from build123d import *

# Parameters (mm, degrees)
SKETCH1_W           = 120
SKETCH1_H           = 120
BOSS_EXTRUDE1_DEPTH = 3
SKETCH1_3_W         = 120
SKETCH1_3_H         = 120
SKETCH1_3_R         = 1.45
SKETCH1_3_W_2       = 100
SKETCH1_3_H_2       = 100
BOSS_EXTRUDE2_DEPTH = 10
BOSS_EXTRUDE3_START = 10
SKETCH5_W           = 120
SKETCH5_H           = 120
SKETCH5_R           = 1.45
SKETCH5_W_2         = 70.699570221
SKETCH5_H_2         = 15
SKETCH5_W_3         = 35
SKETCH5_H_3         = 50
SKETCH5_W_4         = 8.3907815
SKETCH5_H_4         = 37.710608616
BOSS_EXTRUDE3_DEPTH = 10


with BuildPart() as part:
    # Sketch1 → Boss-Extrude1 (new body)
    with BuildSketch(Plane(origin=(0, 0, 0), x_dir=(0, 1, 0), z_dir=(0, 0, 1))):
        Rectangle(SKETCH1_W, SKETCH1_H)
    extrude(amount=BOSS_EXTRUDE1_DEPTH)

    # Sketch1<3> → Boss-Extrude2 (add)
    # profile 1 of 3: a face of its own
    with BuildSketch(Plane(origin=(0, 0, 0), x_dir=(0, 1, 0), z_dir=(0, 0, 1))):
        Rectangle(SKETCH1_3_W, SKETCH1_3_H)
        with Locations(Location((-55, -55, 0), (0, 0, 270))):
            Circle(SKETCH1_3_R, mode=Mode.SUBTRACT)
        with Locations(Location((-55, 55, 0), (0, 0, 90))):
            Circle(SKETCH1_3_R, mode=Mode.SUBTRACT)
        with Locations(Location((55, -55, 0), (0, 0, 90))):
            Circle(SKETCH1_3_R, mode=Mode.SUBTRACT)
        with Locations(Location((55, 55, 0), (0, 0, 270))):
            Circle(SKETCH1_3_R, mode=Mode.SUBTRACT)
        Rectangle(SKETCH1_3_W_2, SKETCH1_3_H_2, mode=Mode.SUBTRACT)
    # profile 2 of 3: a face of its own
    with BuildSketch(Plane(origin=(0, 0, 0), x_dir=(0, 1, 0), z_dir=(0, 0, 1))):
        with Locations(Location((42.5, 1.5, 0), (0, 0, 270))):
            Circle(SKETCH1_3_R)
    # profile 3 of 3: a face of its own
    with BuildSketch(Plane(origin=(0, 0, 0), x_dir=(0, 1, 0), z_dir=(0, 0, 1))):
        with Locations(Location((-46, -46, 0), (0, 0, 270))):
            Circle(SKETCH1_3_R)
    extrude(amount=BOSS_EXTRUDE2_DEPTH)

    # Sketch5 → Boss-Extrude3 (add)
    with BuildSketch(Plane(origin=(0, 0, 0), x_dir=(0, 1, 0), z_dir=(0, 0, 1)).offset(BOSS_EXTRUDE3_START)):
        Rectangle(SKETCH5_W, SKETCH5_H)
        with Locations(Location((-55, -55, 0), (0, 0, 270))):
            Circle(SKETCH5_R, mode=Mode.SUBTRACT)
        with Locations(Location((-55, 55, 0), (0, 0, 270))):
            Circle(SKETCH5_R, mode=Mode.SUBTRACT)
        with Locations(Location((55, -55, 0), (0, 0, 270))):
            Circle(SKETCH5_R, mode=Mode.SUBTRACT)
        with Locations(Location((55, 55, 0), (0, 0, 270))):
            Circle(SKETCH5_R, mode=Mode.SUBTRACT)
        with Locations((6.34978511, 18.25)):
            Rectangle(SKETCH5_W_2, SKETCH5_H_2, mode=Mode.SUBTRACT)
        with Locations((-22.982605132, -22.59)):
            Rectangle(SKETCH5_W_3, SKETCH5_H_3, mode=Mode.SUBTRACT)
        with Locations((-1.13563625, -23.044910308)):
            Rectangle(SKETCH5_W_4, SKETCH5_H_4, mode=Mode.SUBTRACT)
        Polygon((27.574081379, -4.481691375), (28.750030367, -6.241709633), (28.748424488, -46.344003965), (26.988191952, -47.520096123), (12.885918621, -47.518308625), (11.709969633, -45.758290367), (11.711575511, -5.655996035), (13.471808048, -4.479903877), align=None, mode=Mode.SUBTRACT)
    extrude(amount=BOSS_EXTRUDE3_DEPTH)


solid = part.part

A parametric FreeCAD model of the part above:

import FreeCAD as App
import Part
import Sketcher
from FreeCAD import Vector

doc = App.newDocument("Part")
body = doc.addObject("PartDesign::Body", "Body")

sketch1 = body.newObject("Sketcher::SketchObject", "Sketch")
sketch1.AttachmentSupport = (doc.getObject("XY_Plane"), [""])
sketch1.MapMode = "FlatFace"
sketch1.addGeometry([
    Part.LineSegment(Vector(-60, -60, 0), Vector(60, -60, 0)),
    Part.LineSegment(Vector(60, -60, 0), Vector(60, 60, 0)),
    Part.LineSegment(Vector(60, 60, 0), Vector(-60, 60, 0)),
    Part.LineSegment(Vector(-60, 60, 0), Vector(-60, -60, 0)),
], False)
sketch1.addConstraint([
    Sketcher.Constraint("Coincident", 0, 2, 1, 1),
    Sketcher.Constraint("Coincident", 1, 2, 2, 1),
    Sketcher.Constraint("Coincident", 2, 2, 3, 1),
    Sketcher.Constraint("Coincident", 3, 2, 0, 1),
    Sketcher.Constraint("Horizontal", 0),
    Sketcher.Constraint("Vertical", 1),
    Sketcher.Constraint("Horizontal", 2),
    Sketcher.Constraint("Vertical", 3),
    Sketcher.Constraint("Symmetric", 0, 2, 2, 2, -1, 1),
    Sketcher.Constraint("Equal", 2, 1),
    Sketcher.Constraint("DistanceX", 0, 1, 0, 2, 120.0),
])
pad1 = body.newObject("PartDesign::Pad", "Pad")
pad1.Profile = sketch1
pad1.Length = 3

sketch2 = body.newObject("Sketcher::SketchObject", "Sketch001")
sketch2.AttachmentSupport = (doc.getObject("XY_Plane"), [""])
sketch2.MapMode = "FlatFace"
sketch2.addGeometry([
    Part.LineSegment(Vector(-60, -60, 0), Vector(60, -60, 0)),
    Part.LineSegment(Vector(60, -60, 0), Vector(60, 60, 0)),
    Part.LineSegment(Vector(60, 60, 0), Vector(-60, 60, 0)),
    Part.LineSegment(Vector(-60, 60, 0), Vector(-60, -60, 0)),
    Part.Circle(Vector(55, -55, 0), Vector(0, 0, 1), 1.45),
    Part.LineSegment(Vector(50, 50, 0), Vector(50, -50, 0)),
    Part.LineSegment(Vector(50, -50, 0), Vector(-50, -50, 0)),
    Part.LineSegment(Vector(-50, -50, 0), Vector(-50, 50, 0)),
    Part.LineSegment(Vector(-50, 50, 0), Vector(50, 50, 0)),
    Part.Circle(Vector(55, 55, 0), Vector(0, 0, 1), 1.45),
    Part.Circle(Vector(-55, -55, 0), Vector(0, 0, 1), 1.45),
    Part.Circle(Vector(-55, 55, 0), Vector(0, 0, 1), 1.45),
    Part.Circle(Vector(-1.5, 42.5, 0), Vector(0, 0, 1), 1.45),
    Part.Circle(Vector(46, -46, 0), Vector(0, 0, 1), 1.45),
], False)
sketch2.addConstraint([
    Sketcher.Constraint("Coincident", 0, 2, 1, 1),
    Sketcher.Constraint("Coincident", 1, 2, 2, 1),
    Sketcher.Constraint("Coincident", 2, 2, 3, 1),
    Sketcher.Constraint("Coincident", 3, 2, 0, 1),
    Sketcher.Constraint("Coincident", 5, 2, 6, 1),
    Sketcher.Constraint("Coincident", 6, 2, 7, 1),
    Sketcher.Constraint("Coincident", 7, 2, 8, 1),
    Sketcher.Constraint("Coincident", 8, 2, 5, 1),
    Sketcher.Constraint("Horizontal", 0),
    Sketcher.Constraint("Vertical", 1),
    Sketcher.Constraint("Horizontal", 2),
    Sketcher.Constraint("Vertical", 3),
    Sketcher.Constraint("Vertical", 5),
    Sketcher.Constraint("Horizontal", 6),
    Sketcher.Constraint("Vertical", 7),
    Sketcher.Constraint("Horizontal", 8),
    Sketcher.Constraint("Equal", 4, 9),
    Sketcher.Constraint("Equal", 9, 10),
    Sketcher.Constraint("Equal", 10, 11),
    Sketcher.Constraint("Equal", 11, 12),
    Sketcher.Constraint("Equal", 12, 13),
    Sketcher.Constraint("Symmetric", 9, 3, 10, 3, -1, 1),
    Sketcher.Constraint("Symmetric", 4, 3, 11, 3, -1, 1),
    Sketcher.Constraint("Symmetric", 0, 2, 2, 2, -1, 1),
    Sketcher.Constraint("Symmetric", 5, 2, 7, 2, -1, 1),
    Sketcher.Constraint("Symmetric", 4, 3, 10, 3, -2),
    Sketcher.Constraint("Equal", 2, 1),
    Sketcher.Constraint("Equal", 8, 5),
    Sketcher.Constraint("Diameter", 4, 2.9),
    Sketcher.Constraint("DistanceX", 0, 1, 0, 2, 120.0),
    Sketcher.Constraint("DistanceX", 6, 2, 6, 1, 100.0),
    Sketcher.Constraint("DistanceX", -1, 1, 4, 3, 55.0),
    Sketcher.Constraint("DistanceY", 4, 3, -1, 1, 55.0),
    Sketcher.Constraint("DistanceX", -1, 1, 13, 3, 46.0),
    Sketcher.Constraint("DistanceY", 13, 3, -1, 1, 46.0),
    Sketcher.Constraint("DistanceX", 12, 3, -1, 1, 1.5),
    Sketcher.Constraint("DistanceY", -1, 1, 12, 3, 42.5),
])
pad2 = body.newObject("PartDesign::Pad", "Pad001")
pad2.Profile = sketch2
pad2.Length = 10

sketch3 = body.newObject("Sketcher::SketchObject", "Sketch002")
sketch3.AttachmentSupport = (doc.getObject("XY_Plane"), [""])
sketch3.MapMode = "FlatFace"
sketch3.AttachmentOffset = App.Placement(Vector(0, 0, 10), App.Rotation())
sketch3.addGeometry([
    Part.LineSegment(Vector(-60, -60, 0), Vector(60, -60, 0)),
    Part.LineSegment(Vector(60, -60, 0), Vector(60, 60, 0)),
    Part.LineSegment(Vector(60, 60, 0), Vector(-60, 60, 0)),
    Part.LineSegment(Vector(-60, 60, 0), Vector(-60, -60, 0)),
    Part.Circle(Vector(55, -55, 0), Vector(0, 0, 1), 1.45),
    Part.LineSegment(Vector(47.59, -5.482605, 0), Vector(47.59, -40.482605, 0)),
    Part.LineSegment(Vector(47.59, -40.482605, 0), Vector(-2.41, -40.482605, 0)),
    Part.LineSegment(Vector(-2.41, -40.482605, 0), Vector(-2.41, -5.482605, 0)),
    Part.LineSegment(Vector(-2.41, -5.482605, 0), Vector(47.59, -5.482605, 0)),
    Part.LineSegment(Vector(41.900215, 3.059754, 0), Vector(41.900215, -5.331027, 0)),
    Part.LineSegment(Vector(41.900215, -5.331027, 0), Vector(4.189606, -5.331027, 0)),
    Part.LineSegment(Vector(4.189606, -5.331027, 0), Vector(4.189606, 3.059754, 0)),
    Part.LineSegment(Vector(4.189606, 3.059754, 0), Vector(41.900215, 3.059754, 0)),
    Part.Circle(Vector(55, 55, 0), Vector(0, 0, 1), 1.45),
    Part.LineSegment(Vector(4.479904, 13.471808, 0), Vector(4.481691, 27.574081, 0)),
    Part.LineSegment(Vector(4.481691, 27.574081, 0), Vector(6.24171, 28.75003, 0)),
    Part.LineSegment(Vector(6.24171, 28.75003, 0), Vector(46.344004, 28.748424, 0)),
    Part.LineSegment(Vector(46.344004, 28.748424, 0), Vector(47.520096, 26.988192, 0)),
    Part.LineSegment(Vector(47.520096, 26.988192, 0), Vector(47.518309, 12.885919, 0)),
    Part.LineSegment(Vector(47.518309, 12.885919, 0), Vector(45.75829, 11.70997, 0)),
    Part.LineSegment(Vector(45.75829, 11.70997, 0), Vector(5.655996, 11.711576, 0)),
    Part.LineSegment(Vector(5.655996, 11.711576, 0), Vector(4.479904, 13.471808, 0)),
    Part.Circle(Vector(-55, -55, 0), Vector(0, 0, 1), 1.45),
    Part.LineSegment(Vector(-10.75, 41.69957, 0), Vector(-10.75, -29, 0)),
    Part.LineSegment(Vector(-10.75, -29, 0), Vector(-25.75, -29, 0)),
    Part.LineSegment(Vector(-25.75, -29, 0), Vector(-25.75, 41.69957, 0)),
    Part.LineSegment(Vector(-25.75, 41.69957, 0), Vector(-10.75, 41.69957, 0)),
    Part.Circle(Vector(-55, 55, 0), Vector(0, 0, 1), 1.45),
], False)
sketch3.addConstraint([
    Sketcher.Constraint("Coincident", 0, 2, 1, 1),
    Sketcher.Constraint("Coincident", 1, 2, 2, 1),
    Sketcher.Constraint("Coincident", 2, 2, 3, 1),
    Sketcher.Constraint("Coincident", 3, 2, 0, 1),
    Sketcher.Constraint("Coincident", 5, 2, 6, 1),
    Sketcher.Constraint("Coincident", 6, 2, 7, 1),
    Sketcher.Constraint("Coincident", 7, 2, 8, 1),
    Sketcher.Constraint("Coincident", 8, 2, 5, 1),
    Sketcher.Constraint("Coincident", 9, 2, 10, 1),
    Sketcher.Constraint("Coincident", 10, 2, 11, 1),
    Sketcher.Constraint("Coincident", 11, 2, 12, 1),
    Sketcher.Constraint("Coincident", 12, 2, 9, 1),
    Sketcher.Constraint("Coincident", 14, 2, 15, 1),
    Sketcher.Constraint("Coincident", 15, 2, 16, 1),
    Sketcher.Constraint("Coincident", 16, 2, 17, 1),
    Sketcher.Constraint("Coincident", 17, 2, 18, 1),
    Sketcher.Constraint("Coincident", 18, 2, 19, 1),
    Sketcher.Constraint("Coincident", 19, 2, 20, 1),
    Sketcher.Constraint("Coincident", 20, 2, 21, 1),
    Sketcher.Constraint("Coincident", 21, 2, 14, 1),
    Sketcher.Constraint("Coincident", 23, 2, 24, 1),
    Sketcher.Constraint("Coincident", 24, 2, 25, 1),
    Sketcher.Constraint("Coincident", 25, 2, 26, 1),
    Sketcher.Constraint("Coincident", 26, 2, 23, 1),
    Sketcher.Constraint("Horizontal", 0),
    Sketcher.Constraint("Vertical", 1),
    Sketcher.Constraint("Horizontal", 2),
    Sketcher.Constraint("Vertical", 3),
    Sketcher.Constraint("Vertical", 5),
    Sketcher.Constraint("Horizontal", 6),
    Sketcher.Constraint("Vertical", 7),
    Sketcher.Constraint("Horizontal", 8),
    Sketcher.Constraint("Vertical", 9),
    Sketcher.Constraint("Horizontal", 10),
    Sketcher.Constraint("Vertical", 11),
    Sketcher.Constraint("Horizontal", 12),
    Sketcher.Constraint("Vertical", 23),
    Sketcher.Constraint("Horizontal", 24),
    Sketcher.Constraint("Vertical", 25),
    Sketcher.Constraint("Horizontal", 26),
    Sketcher.Constraint("Equal", 4, 13),
    Sketcher.Constraint("Equal", 13, 22),
    Sketcher.Constraint("Equal", 22, 27),
    Sketcher.Constraint("Symmetric", 13, 3, 22, 3, -1, 1),
    Sketcher.Constraint("Symmetric", 4, 3, 27, 3, -1, 1),
    Sketcher.Constraint("Symmetric", 0, 2, 2, 2, -1, 1),
    Sketcher.Constraint("Symmetric", 4, 3, 22, 3, -2),
    Sketcher.Constraint("Perpendicular", 15, 17),
    Sketcher.Constraint("Parallel", 14, 18),
    Sketcher.Constraint("Perpendicular", 17, 19),
    Sketcher.Constraint("Parallel", 16, 20),
    Sketcher.Constraint("Perpendicular", 19, 21),
    Sketcher.Constraint("Equal", 2, 1),
    Sketcher.Constraint("Equal", 14, 18),
    Sketcher.Constraint("Equal", 15, 19),
    Sketcher.Constraint("Diameter", 4, 2.9),
    Sketcher.Constraint("DistanceX", 0, 1, 0, 2, 120.0),
    Sketcher.Constraint("DistanceX", 6, 2, 6, 1, 50.0),
    Sketcher.Constraint("DistanceX", 24, 2, 24, 1, 15.0),
    Sketcher.Constraint("DistanceY", 5, 2, 5, 1, 35.0),
    Sketcher.Constraint("DistanceX", -1, 1, 4, 3, 55.0),
    Sketcher.Constraint("DistanceY", 4, 3, -1, 1, 55.0),
    Sketcher.Constraint("DistanceY", 23, 2, -1, 1, 29.0),
    Sketcher.Constraint("DistanceX", -1, 1, 5, 2, 47.59),
    Sketcher.Constraint("DistanceX", 23, 2, -1, 1, 10.75),
    Sketcher.Constraint("DistanceX", 10, 2, 10, 1, 37.710609),
    Sketcher.Constraint("DistanceY", 9, 2, 9, 1, 8.390781),
    Sketcher.Constraint("DistanceY", 23, 2, 23, 1, 70.69957),
    Sketcher.Constraint("Distance", 17, 2.116982),
    Sketcher.Constraint("DistanceX", -1, 1, 14, 2, 4.481691),
    Sketcher.Constraint("DistanceY", -1, 1, 14, 2, 27.574081),
    Sketcher.Constraint("DistanceX", -1, 1, 15, 2, 6.24171),
    Sketcher.Constraint("DistanceY", -1, 1, 15, 2, 28.75003),
    Sketcher.Constraint("DistanceY", -1, 1, 17, 2, 26.988192),
    Sketcher.Constraint("DistanceX", -1, 1, 18, 2, 47.518309),
    Sketcher.Constraint("DistanceY", -1, 1, 18, 2, 12.885919),
    Sketcher.Constraint("DistanceY", 8, 2, 9, 2, 0.151578),
    Sketcher.Constraint("DistanceY", 10, 2, 14, 2, 32.905108),
    Sketcher.Constraint("DistanceX", 12, 2, 16, 2, 4.443789),
    Sketcher.Constraint("DistanceX", 11, 2, 20, 2, 1.46639),
])
pad3 = body.newObject("PartDesign::Pad", "Pad002")
pad3.Profile = sketch3
pad3.Length = 10

doc.recompute()
